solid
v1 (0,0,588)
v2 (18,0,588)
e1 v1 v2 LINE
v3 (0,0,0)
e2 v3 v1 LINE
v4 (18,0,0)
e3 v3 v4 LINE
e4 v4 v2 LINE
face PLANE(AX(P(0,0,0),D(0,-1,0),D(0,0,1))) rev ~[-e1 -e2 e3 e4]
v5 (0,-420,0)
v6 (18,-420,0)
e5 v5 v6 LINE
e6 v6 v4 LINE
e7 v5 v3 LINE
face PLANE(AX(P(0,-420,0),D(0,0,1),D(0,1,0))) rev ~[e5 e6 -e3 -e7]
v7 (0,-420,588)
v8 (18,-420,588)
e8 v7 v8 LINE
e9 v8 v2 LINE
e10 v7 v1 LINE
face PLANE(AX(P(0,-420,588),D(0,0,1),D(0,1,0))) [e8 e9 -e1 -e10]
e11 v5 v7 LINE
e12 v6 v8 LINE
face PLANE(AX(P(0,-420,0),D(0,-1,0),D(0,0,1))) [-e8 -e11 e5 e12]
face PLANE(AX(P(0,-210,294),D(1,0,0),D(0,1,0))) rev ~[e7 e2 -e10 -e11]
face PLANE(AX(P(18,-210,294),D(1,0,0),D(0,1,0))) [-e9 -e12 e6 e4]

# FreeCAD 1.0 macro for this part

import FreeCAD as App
import Part
import Sketcher
Q = App.Units.Quantity


def add_polygon(sketch, points):
    """Adds a closed chain of lines whose ends are joined by coincident constraints."""
    first, n = sketch.GeometryCount, len(points)
    for a, b in zip(points, points[1:] + points[:1]):
        sketch.addGeometry(Part.LineSegment(App.Vector(*a, 0), App.Vector(*b, 0)), False)
    for i in range(n):
        sketch.addConstraint(Sketcher.Constraint("Coincident", first + i, 2, first + (i + 1) % n, 1))

doc = App.newDocument("Part")
params = doc.addObject("Spreadsheet::Sheet", "Params")
for row, (alias, value) in enumerate([
    ("sketch1_width", "420 mm"),
    ("sketch1_height", "588 mm"),
    ("pad1_length", "18 mm"),
], start=1):
    params.set(f"A{row}", alias)
    params.set(f"B{row}", "=" + value)
    params.setAlias(f"B{row}", alias)

body = doc.addObject("PartDesign::Body", "Body")

# Sketch on YZ plane
sketch1 = body.newObject("Sketcher::SketchObject", "Sketch")
sketch1.AttachmentSupport = (doc.getObject("YZ_Plane"), [""])
sketch1.MapMode = "FlatFace"
add_polygon(sketch1, [(-420, 588), (-420, 0), (0, 0), (0, 588)])  # lines 0-3
sketch1.addConstraint(Sketcher.Constraint("Vertical", 0))
sketch1.addConstraint(Sketcher.Constraint("Horizontal", 1))
sketch1.addConstraint(Sketcher.Constraint("Vertical", 2))
sketch1.addConstraint(Sketcher.Constraint("Horizontal", 3))
sketch1.addConstraint(Sketcher.Constraint("Coincident", 1, 2, -1, 1))
sketch1.addConstraint(Sketcher.Constraint("DistanceX", 1, 1, 1, 2, Q("420 mm")))
sketch1.addConstraint(Sketcher.Constraint("DistanceY", 0, 2, 0, 1, Q("588 mm")))
sketch1.setExpression("Constraints[9]", "Params.sketch1_width")
sketch1.setExpression("Constraints[10]", "Params.sketch1_height")
pad1 = body.newObject("PartDesign::Pad", "Pad")
pad1.Profile = sketch1
pad1.setExpression("Length", "Params.pad1_length")

doc.recompute()
